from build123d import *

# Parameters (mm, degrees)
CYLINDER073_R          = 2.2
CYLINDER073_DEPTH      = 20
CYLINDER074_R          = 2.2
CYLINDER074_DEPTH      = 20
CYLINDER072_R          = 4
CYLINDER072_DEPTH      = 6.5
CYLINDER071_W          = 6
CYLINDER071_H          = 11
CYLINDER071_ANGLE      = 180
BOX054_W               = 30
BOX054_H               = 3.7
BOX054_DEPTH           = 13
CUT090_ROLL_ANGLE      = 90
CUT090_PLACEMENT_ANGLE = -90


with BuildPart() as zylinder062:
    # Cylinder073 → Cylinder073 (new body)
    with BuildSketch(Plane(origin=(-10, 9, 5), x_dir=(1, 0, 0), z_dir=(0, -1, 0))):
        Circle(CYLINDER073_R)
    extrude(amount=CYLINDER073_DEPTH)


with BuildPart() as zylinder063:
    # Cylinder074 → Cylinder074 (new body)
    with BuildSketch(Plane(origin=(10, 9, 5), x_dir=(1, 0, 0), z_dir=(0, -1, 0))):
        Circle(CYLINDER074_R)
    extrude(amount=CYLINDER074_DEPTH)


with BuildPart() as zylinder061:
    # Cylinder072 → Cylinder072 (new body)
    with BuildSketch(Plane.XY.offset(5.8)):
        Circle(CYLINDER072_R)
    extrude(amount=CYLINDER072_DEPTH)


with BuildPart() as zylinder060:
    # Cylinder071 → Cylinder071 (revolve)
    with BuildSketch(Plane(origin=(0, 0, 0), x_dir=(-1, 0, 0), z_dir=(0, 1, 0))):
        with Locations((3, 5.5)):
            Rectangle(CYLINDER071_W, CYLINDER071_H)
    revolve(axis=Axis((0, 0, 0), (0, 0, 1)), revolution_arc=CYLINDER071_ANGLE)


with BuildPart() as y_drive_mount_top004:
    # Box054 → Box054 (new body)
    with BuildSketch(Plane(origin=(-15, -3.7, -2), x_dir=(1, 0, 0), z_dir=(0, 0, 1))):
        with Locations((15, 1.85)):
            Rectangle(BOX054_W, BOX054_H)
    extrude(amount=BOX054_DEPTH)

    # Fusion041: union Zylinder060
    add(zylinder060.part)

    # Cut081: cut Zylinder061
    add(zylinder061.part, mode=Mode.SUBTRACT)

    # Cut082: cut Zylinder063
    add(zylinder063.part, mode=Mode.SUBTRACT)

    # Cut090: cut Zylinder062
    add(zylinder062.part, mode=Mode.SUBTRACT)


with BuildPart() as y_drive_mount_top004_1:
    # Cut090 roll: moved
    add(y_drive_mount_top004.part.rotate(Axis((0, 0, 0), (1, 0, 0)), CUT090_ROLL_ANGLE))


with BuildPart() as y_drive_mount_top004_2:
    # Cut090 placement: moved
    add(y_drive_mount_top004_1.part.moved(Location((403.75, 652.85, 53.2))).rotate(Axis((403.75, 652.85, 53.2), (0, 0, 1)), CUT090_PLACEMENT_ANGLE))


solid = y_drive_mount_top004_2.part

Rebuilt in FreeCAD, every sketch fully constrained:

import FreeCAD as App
import Part
import Sketcher
from FreeCAD import Vector

doc = App.newDocument("Part")
body = doc.addObject("PartDesign::Body", "Body")

sketch1 = body.newObject("Sketcher::SketchObject", "Sketch")
sketch1.AttachmentSupport = (doc.getObject("XZ_Plane"), [""])
sketch1.MapMode = "FlatFace"
sketch1.AttachmentOffset = App.Placement(Vector(0, 0, -9), App.Rotation())
sketch1.addGeometry(Part.Circle(Vector(-10, 5, 0), Vector(0, 0, 1), 2.2), False)
sketch1.addConstraint([
    Sketcher.Constraint("Diameter", 0, 4.4),
    Sketcher.Constraint("DistanceX", 0, 3, -1, 1, 10.0),
    Sketcher.Constraint("DistanceY", -1, 1, 0, 3, 5.0),
])
pad1 = body.newObject("PartDesign::Pad", "Pad")
pad1.Profile = sketch1
pad1.Length = 20
body2 = doc.addObject("PartDesign::Body", "Body001")

sketch2 = body2.newObject("Sketcher::SketchObject", "Sketch001")
sketch2.AttachmentSupport = (doc.getObject("XZ_Plane001"), [""])
sketch2.MapMode = "FlatFace"
sketch2.AttachmentOffset = App.Placement(Vector(0, 0, -9), App.Rotation())
sketch2.addGeometry(Part.Circle(Vector(10, 5, 0), Vector(0, 0, 1), 2.2), False)
sketch2.addConstraint([
    Sketcher.Constraint("Diameter", 0, 4.4),
    Sketcher.Constraint("DistanceX", -1, 1, 0, 3, 10.0),
    Sketcher.Constraint("DistanceY", -1, 1, 0, 3, 5.0),
])
pad2 = body2.newObject("PartDesign::Pad", "Pad001")
pad2.Profile = sketch2
pad2.Length = 20
body3 = doc.addObject("PartDesign::Body", "Body002")

sketch3 = body3.newObject("Sketcher::SketchObject", "Sketch002")
sketch3.AttachmentSupport = (doc.getObject("XY_Plane002"), [""])
sketch3.MapMode = "FlatFace"
sketch3.AttachmentOffset = App.Placement(Vector(0, 0, 5.8), App.Rotation())
sketch3.addGeometry(Part.Circle(Vector(0, 0, 0), Vector(0, 0, 1), 4), False)
sketch3.addConstraint([
    Sketcher.Constraint("Coincident", 0, 3, -1, 1),
    Sketcher.Constraint("Diameter", 0, 8.0),
])
pad3 = body3.newObject("PartDesign::Pad", "Pad002")
pad3.Profile = sketch3
pad3.Length = 6.5
body4 = doc.addObject("PartDesign::Body", "Body003")

sketch4 = body4.newObject("Sketcher::SketchObject", "Sketch003")
sketch4.AttachmentSupport = (doc.getObject("XZ_Plane003"), [""])
sketch4.MapMode = "FlatFace"
sketch4.addGeometry([
    Part.LineSegment(Vector(0, 11, 0), Vector(0, 0, 0)),
    Part.LineSegment(Vector(0, 0, 0), Vector(-6, 0, 0)),
    Part.LineSegment(Vector(-6, 0, 0), Vector(-6, 11, 0)),
    Part.LineSegment(Vector(-6, 11, 0), Vector(0, 11, 0)),
], False)
sketch4.addConstraint([
    Sketcher.Constraint("Coincident", 0, 2, 1, 1),
    Sketcher.Constraint("Coincident", 1, 2, 2, 1),
    Sketcher.Constraint("Coincident", 2, 2, 3, 1),
    Sketcher.Constraint("Coincident", 3, 2, 0, 1),
    Sketcher.Constraint("Vertical", 0),
    Sketcher.Constraint("Horizontal", 1),
    Sketcher.Constraint("Vertical", 2),
    Sketcher.Constraint("Horizontal", 3),
    Sketcher.Constraint("Coincident", 0, 2, -1, 1),
    Sketcher.Constraint("DistanceX", 1, 2, 1, 1, 6.0),
    Sketcher.Constraint("DistanceY", 0, 2, 0, 1, 11.0),
])
revolution = body4.newObject("PartDesign::Revolution", "Revolution")
revolution.Profile = sketch4
revolution.ReferenceAxis = (sketch4, ["V_Axis"])
revolution.Angle = 180
body5 = doc.addObject("PartDesign::Body", "Body004")

sketch5 = body5.newObject("Sketcher::SketchObject", "Sketch004")
sketch5.AttachmentSupport = (doc.getObject("XY_Plane004"), [""])
sketch5.MapMode = "FlatFace"
sketch5.AttachmentOffset = App.Placement(Vector(0, 0, -2), App.Rotation())
sketch5.addGeometry([
    Part.LineSegment(Vector(-15, 0, 0), Vector(-15, -3.7, 0)),
    Part.LineSegment(Vector(-15, -3.7, 0), Vector(15, -3.7, 0)),
    Part.LineSegment(Vector(15, -3.7, 0), Vector(15, 0, 0)),
    Part.LineSegment(Vector(15, 0, 0), Vector(-15, 0, 0)),
], False)
sketch5.addConstraint([
    Sketcher.Constraint("Coincident", 0, 2, 1, 1),
    Sketcher.Constraint("Coincident", 1, 2, 2, 1),
    Sketcher.Constraint("Coincident", 2, 2, 3, 1),
    Sketcher.Constraint("Coincident", 3, 2, 0, 1),
    Sketcher.Constraint("Vertical", 0),
    Sketcher.Constraint("Horizontal", 1),
    Sketcher.Constraint("Vertical", 2),
    Sketcher.Constraint("Horizontal", 3),
    Sketcher.Constraint("Symmetric", 2, 2, 3, 2, -1, 1),
    Sketcher.Constraint("DistanceX", 1, 1, 1, 2, 30.0),
    Sketcher.Constraint("DistanceY", 0, 2, 0, 1, 3.7),
])
pad4 = body5.newObject("PartDesign::Pad", "Pad003")
pad4.Profile = sketch5
pad4.Length = 13
doc.recompute()

boolean = body5.newObject("PartDesign::Boolean", "Boolean")
boolean.Type = "Fuse"
boolean.addObjects([body4])
doc.recompute()

boolean2 = body5.newObject("PartDesign::Boolean", "Boolean001")
boolean2.Type = "Cut"
boolean2.addObjects([body3])
doc.recompute()

boolean3 = body5.newObject("PartDesign::Boolean", "Boolean002")
boolean3.Type = "Cut"
boolean3.addObjects([body2])
doc.recompute()

boolean4 = body5.newObject("PartDesign::Boolean", "Boolean003")
boolean4.Type = "Cut"
boolean4.addObjects([body])
body6 = doc.addObject("PartDesign::Body", "Body005")
doc.recompute()

body5.Placement = App.Placement(Vector(0, 0, 0), App.Rotation(Vector(1, 0, 0), 90))
boolean5 = body6.newObject("PartDesign::Boolean", "Boolean004")
boolean5.Type = "Fuse"
boolean5.addObjects([body5])
body7 = doc.addObject("PartDesign::Body", "Body006")
doc.recompute()

body6.Placement = App.Placement(Vector(403.75, 652.85, 53.2), App.Rotation(Vector(0, 0, 1), 270))
boolean6 = body7.newObject("PartDesign::Boolean", "Boolean005")
boolean6.Type = "Fuse"
boolean6.addObjects([body6])

doc.recompute()
